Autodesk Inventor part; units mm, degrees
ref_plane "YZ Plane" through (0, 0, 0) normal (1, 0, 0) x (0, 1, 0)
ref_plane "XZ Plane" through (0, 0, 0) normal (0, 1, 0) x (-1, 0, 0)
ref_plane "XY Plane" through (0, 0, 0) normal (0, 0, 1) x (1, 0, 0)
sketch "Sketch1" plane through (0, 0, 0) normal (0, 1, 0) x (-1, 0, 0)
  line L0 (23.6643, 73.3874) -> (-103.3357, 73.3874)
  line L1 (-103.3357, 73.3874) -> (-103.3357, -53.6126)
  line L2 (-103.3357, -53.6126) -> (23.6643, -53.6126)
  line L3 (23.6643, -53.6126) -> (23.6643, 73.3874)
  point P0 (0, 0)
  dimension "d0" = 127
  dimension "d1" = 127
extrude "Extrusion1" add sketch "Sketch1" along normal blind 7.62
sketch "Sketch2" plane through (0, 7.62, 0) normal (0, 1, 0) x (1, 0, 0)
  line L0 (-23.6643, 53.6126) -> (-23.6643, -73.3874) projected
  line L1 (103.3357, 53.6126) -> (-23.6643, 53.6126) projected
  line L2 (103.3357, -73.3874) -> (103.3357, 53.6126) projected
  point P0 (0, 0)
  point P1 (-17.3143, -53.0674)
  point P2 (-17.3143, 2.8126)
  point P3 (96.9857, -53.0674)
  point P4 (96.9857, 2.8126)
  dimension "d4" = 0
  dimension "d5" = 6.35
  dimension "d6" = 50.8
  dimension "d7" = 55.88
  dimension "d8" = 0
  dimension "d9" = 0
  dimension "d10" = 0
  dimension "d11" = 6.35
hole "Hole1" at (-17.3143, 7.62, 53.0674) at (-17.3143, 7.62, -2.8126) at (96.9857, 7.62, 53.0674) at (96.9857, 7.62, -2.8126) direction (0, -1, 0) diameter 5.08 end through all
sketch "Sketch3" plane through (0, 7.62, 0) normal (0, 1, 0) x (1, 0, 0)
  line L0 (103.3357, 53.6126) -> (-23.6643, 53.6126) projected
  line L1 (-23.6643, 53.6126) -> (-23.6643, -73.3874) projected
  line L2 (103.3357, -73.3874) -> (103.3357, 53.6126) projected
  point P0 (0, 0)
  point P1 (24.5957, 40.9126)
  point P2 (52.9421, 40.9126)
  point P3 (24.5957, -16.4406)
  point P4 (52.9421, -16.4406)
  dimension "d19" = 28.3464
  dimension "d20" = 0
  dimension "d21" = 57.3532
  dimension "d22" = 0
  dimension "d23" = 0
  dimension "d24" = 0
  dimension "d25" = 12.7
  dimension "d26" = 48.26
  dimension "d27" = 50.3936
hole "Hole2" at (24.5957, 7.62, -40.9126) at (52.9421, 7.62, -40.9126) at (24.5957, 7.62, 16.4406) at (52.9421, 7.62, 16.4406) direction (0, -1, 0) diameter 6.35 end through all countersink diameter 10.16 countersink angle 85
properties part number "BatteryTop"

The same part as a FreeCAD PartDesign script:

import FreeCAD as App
import Part
import Sketcher
from FreeCAD import Vector
Q = App.Units.Quantity


def add_polygon(sketch, points):
    """Adds a closed chain of lines whose ends are joined by coincident constraints."""
    first, n = sketch.GeometryCount, len(points)
    for a, b in zip(points, points[1:] + points[:1]):
        sketch.addGeometry(Part.LineSegment(App.Vector(*a, 0), App.Vector(*b, 0)), False)
    for i in range(n):
        sketch.addConstraint(Sketcher.Constraint("Coincident", first + i, 2, first + (i + 1) % n, 1))

doc = App.newDocument("Part")
body = doc.addObject("PartDesign::Body", "Body")

# Sketch on XZ plane
sketch1 = body.newObject("Sketcher::SketchObject", "Sketch")
sketch1.AttachmentSupport = (doc.getObject("XZ_Plane"), [""])
sketch1.MapMode = "FlatFace"
add_polygon(sketch1, [(-23.6643, -53.6126), (-23.6643, 73.3874), (103.3357, 73.3874), (103.3357, -53.6126)])  # lines 0-3
sketch1.addConstraint([
    Sketcher.Constraint("Vertical", 0),
    Sketcher.Constraint("Horizontal", 1),
    Sketcher.Constraint("Vertical", 2),
    Sketcher.Constraint("Horizontal", 3),
    Sketcher.Constraint("Equal", 3, 0),
    Sketcher.Constraint("DistanceX", 1, 1, 1, 2, Q("5 in")),
    Sketcher.Constraint("DistanceX", 0, 2, -1, 1, Q("23.6643 mm")),
    Sketcher.Constraint("DistanceY", -1, 1, 0, 2, Q("73.3874 mm")),
])
pad1 = body.newObject("PartDesign::Pad", "Pad")
pad1.Profile = sketch1
pad1.Length = Q("0.3 in")
pad1.Reversed = True

# Sketch on XZ plane
sketch2 = body.newObject("Sketcher::SketchObject", "Sketch001")
sketch2.AttachmentSupport = (doc.getObject("XZ_Plane"), [""])
sketch2.MapMode = "FlatFace"
sketch2.AttachmentOffset = App.Placement(Vector(0, 0, -0.3 * 25.4), App.Rotation())
sketch2.addGeometry([
    Part.Circle(Vector(-17.3143, 53.0674, 0), Vector(0, 0, 1), 2.54),
    Part.Circle(Vector(-17.3143, -2.8126, 0), Vector(0, 0, 1), 2.54),
    Part.Circle(Vector(96.9857, 53.0674, 0), Vector(0, 0, 1), 2.54),
    Part.Circle(Vector(96.9857, -2.8126, 0), Vector(0, 0, 1), 2.54),
], False)
sketch2.addConstraint([
    Sketcher.Constraint("Equal", 0, 1),
    Sketcher.Constraint("Equal", 1, 2),
    Sketcher.Constraint("Equal", 2, 3),
    Sketcher.Constraint("Horizontal", 0, 3, 2, 3),
    Sketcher.Constraint("Horizontal", 1, 3, 3, 3),
    Sketcher.Constraint("Vertical", 0, 3, 1, 3),
    Sketcher.Constraint("Vertical", 2, 3, 3, 3),
    Sketcher.Constraint("Diameter", 0, Q("0.2 in")),
    Sketcher.Constraint("DistanceY", 1, 3, 0, 3, Q("2.2 in")),
    Sketcher.Constraint("DistanceX", 0, 3, 2, 3, Q("4.5 in")),
    Sketcher.Constraint("DistanceX", 0, 3, -1, 1, Q("17.3143 mm")),
    Sketcher.Constraint("DistanceY", -1, 1, 0, 3, Q("53.0674 mm")),
])
doc.recompute()
hole = body.newObject("PartDesign::Hole", "Hole")
hole.Profile = sketch2
hole.ThreadType = "None"
hole.Diameter = Q("0.2 in")
hole.DepthType = "ThroughAll"
hole.Reversed = True

# Sketch on XZ plane
sketch3 = body.newObject("Sketcher::SketchObject", "Sketch002")
sketch3.AttachmentSupport = (doc.getObject("XZ_Plane"), [""])
sketch3.MapMode = "FlatFace"
sketch3.AttachmentOffset = App.Placement(Vector(0, 0, -0.3 * 25.4), App.Rotation())
sketch3.addGeometry([
    Part.Circle(Vector(24.5957, -40.9126, 0), Vector(0, 0, 1), 3.175),
    Part.Circle(Vector(52.9421, -40.9126, 0), Vector(0, 0, 1), 3.175),
    Part.Circle(Vector(24.5957, 16.4406, 0), Vector(0, 0, 1), 3.175),
    Part.Circle(Vector(52.9421, 16.4406, 0), Vector(0, 0, 1), 3.175),
], False)
sketch3.addConstraint([
    Sketcher.Constraint("Equal", 0, 1),
    Sketcher.Constraint("Equal", 1, 2),
    Sketcher.Constraint("Equal", 2, 3),
    Sketcher.Constraint("Horizontal", 0, 3, 1, 3),
    Sketcher.Constraint("Horizontal", 2, 3, 3, 3),
    Sketcher.Constraint("Vertical", 0, 3, 2, 3),
    Sketcher.Constraint("Vertical", 1, 3, 3, 3),
    Sketcher.Constraint("Diameter", 0, Q("0.25 in")),
    Sketcher.Constraint("DistanceX", 0, 3, 1, 3, Q("1.116 in")),
    Sketcher.Constraint("DistanceY", 0, 3, 2, 3, Q("2.258 in")),
    Sketcher.Constraint("DistanceX", -1, 1, 0, 3, Q("24.5957 mm")),
    Sketcher.Constraint("DistanceY", 0, 3, -1, 1, Q("40.9126 mm")),
])
doc.recompute()
hole2 = body.newObject("PartDesign::Hole", "Hole001")
hole2.Profile = sketch3
hole2.ThreadType = "None"
hole2.Diameter = Q("0.25 in")
hole2.DepthType = "ThroughAll"
hole2.HoleCutType = "Countersink"
hole2.HoleCutDiameter = Q("0.4 in")
hole2.HoleCutCountersinkAngle = 85
hole2.Reversed = True

doc.recompute()
